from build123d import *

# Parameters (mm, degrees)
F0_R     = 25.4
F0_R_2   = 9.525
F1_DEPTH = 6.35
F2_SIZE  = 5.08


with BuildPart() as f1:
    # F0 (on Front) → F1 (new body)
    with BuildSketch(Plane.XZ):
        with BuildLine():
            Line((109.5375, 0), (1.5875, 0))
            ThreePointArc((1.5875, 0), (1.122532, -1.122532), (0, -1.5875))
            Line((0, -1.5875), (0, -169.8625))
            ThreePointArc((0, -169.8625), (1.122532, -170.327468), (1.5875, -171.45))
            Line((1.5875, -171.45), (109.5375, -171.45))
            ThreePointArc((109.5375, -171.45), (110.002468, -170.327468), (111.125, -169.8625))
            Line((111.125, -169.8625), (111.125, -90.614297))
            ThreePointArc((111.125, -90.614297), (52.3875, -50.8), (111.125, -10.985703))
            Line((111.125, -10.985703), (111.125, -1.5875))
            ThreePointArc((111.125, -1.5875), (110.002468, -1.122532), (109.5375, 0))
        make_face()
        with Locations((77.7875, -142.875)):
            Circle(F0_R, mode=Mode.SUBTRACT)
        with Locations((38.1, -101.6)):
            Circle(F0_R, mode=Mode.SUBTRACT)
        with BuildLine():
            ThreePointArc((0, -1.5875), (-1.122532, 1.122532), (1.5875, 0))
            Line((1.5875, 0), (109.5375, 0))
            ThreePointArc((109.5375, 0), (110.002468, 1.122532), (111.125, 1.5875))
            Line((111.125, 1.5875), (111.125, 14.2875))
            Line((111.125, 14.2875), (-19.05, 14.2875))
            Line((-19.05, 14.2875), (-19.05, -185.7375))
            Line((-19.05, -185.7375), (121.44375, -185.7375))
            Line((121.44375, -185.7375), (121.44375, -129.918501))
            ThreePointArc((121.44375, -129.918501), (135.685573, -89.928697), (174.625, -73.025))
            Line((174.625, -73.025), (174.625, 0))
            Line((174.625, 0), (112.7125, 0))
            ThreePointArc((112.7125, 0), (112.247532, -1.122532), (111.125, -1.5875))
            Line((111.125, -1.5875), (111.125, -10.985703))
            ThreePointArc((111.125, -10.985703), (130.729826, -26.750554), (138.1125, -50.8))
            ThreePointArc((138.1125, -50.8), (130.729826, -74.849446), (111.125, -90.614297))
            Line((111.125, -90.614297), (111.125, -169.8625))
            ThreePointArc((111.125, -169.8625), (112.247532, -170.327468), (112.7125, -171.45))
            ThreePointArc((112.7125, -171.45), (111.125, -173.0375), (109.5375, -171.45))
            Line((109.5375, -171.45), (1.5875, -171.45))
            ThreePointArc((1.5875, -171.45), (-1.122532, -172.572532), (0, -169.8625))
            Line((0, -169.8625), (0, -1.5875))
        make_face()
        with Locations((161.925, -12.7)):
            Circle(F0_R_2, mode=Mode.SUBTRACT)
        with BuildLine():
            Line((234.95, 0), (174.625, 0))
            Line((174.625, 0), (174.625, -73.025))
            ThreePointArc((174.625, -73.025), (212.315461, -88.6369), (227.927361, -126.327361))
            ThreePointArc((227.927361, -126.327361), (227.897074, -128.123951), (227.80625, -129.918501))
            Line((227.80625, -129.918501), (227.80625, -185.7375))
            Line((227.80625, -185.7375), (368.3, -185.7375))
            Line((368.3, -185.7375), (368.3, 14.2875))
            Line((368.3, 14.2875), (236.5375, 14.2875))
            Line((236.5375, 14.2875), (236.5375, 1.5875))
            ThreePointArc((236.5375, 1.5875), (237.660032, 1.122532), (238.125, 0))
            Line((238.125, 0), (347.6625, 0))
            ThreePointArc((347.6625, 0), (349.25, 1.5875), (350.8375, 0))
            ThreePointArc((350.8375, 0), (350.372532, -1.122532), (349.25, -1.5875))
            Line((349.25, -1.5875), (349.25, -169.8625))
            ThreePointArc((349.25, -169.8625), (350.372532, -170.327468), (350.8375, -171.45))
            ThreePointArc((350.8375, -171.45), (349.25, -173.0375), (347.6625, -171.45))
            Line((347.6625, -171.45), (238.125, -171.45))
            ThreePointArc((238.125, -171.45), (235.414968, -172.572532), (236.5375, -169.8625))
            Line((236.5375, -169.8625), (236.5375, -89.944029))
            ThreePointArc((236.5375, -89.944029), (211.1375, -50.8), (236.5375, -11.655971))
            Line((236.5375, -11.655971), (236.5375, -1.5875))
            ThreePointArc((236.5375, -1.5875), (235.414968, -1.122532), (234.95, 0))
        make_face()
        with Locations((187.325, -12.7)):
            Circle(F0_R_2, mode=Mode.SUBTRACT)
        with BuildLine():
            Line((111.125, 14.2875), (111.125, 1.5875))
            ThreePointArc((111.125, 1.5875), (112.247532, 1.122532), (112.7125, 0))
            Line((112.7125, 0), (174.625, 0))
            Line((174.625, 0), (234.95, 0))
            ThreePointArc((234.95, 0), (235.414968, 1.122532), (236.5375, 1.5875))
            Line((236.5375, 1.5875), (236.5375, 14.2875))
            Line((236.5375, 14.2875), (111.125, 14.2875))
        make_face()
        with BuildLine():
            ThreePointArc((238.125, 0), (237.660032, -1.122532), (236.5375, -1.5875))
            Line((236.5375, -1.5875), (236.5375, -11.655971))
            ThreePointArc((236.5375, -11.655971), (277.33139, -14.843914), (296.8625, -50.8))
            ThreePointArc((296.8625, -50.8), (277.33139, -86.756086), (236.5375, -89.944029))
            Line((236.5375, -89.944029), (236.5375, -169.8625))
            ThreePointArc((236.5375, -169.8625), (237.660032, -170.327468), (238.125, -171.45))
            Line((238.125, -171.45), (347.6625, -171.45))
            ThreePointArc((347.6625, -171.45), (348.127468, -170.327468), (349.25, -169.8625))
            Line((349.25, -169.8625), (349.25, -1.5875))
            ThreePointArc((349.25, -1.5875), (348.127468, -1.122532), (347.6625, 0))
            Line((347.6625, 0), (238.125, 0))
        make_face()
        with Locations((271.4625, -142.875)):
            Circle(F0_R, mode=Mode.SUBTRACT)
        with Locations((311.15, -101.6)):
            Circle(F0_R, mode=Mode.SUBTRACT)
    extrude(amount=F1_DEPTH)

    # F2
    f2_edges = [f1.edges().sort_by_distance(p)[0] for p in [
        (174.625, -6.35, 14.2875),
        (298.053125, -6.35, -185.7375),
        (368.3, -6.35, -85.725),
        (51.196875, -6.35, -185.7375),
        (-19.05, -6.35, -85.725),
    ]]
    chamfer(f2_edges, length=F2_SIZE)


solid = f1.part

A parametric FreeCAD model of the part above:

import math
import FreeCAD as App
import Part
import Sketcher
from FreeCAD import Vector
Q = App.Units.Quantity


def edges_at(feature, points):
    """Names of the edges that pass closest to the given points."""
    edges = feature.Shape.Edges
    near = lambda p: min(range(len(edges)), key=lambda i: edges[i].distToShape(Part.Vertex(*p))[0])
    return sorted({f"Edge{near(p) + 1}" for p in points})

doc = App.newDocument("Part")
body = doc.addObject("PartDesign::Body", "Body")

# Sketch on XZ plane
sketch1 = body.newObject("Sketcher::SketchObject", "Sketch")
sketch1.AttachmentSupport = (doc.getObject("XZ_Plane"), [""])
sketch1.MapMode = "FlatFace"
sketch1.addGeometry([
    Part.LineSegment(Vector(-19.05, 14.2875, 0), Vector(-19.05, -185.7375, 0)),  # 0
    Part.LineSegment(Vector(-19.05, -185.7375, 0), Vector(121.44375, -185.7375, 0)),  # 1
    Part.LineSegment(Vector(121.44375, -185.7375, 0), Vector(121.44375, -129.918501, 0)),  # 2
    Part.ArcOfCircle(Part.Circle(Vector(174.624999, -126.32736, 0), Vector(0, 0, 1), 53.30236), math.radians(89.999999), math.radians(183.863116)),  # 3
    Part.ArcOfCircle(Part.Circle(Vector(174.625, -126.327361, 0), Vector(0, 0, 1), 53.302361), math.radians(0), math.radians(90)),  # 4
    Part.ArcOfCircle(Part.Circle(Vector(174.624023, -126.327321, 0), Vector(0, 0, 1), 53.303338), math.radians(-3.863087), math.radians(-0.000043)),  # 5
    Part.LineSegment(Vector(227.80625, -129.918501, 0), Vector(227.80625, -185.7375, 0)),  # 6
    Part.LineSegment(Vector(227.80625, -185.7375, 0), Vector(368.3, -185.7375, 0)),  # 7
    Part.LineSegment(Vector(368.3, -185.7375, 0), Vector(368.3, 14.2875, 0)),  # 8
    Part.LineSegment(Vector(368.3, 14.2875, 0), Vector(-19.05, 14.2875, 0)),  # 9
    Part.ArcOfCircle(Part.Circle(Vector(0, -171.45, 0), Vector(0, 0, 1), 1.5875), math.radians(0.000002), math.radians(89.999998)),  # 10
    Part.ArcOfCircle(Part.Circle(Vector(0, -171.45, 0), Vector(0, 0, 1), 1.5875), math.radians(90), math.radians(360)),  # 11
    Part.Circle(Vector(77.7875, -142.875, 0), Vector(0, 0, 1), 25.4),  # 12
    Part.ArcOfCircle(Part.Circle(Vector(111.125, -171.45, 0), Vector(0, 0, 1), 1.5875), math.radians(90.000002), math.radians(179.999998)),  # 13
    Part.ArcOfCircle(Part.Circle(Vector(111.125, -171.45, 0), Vector(0, 0, 1), 1.5875), math.radians(0.000002), math.radians(89.999998)),  # 14
    Part.ArcOfCircle(Part.Circle(Vector(111.125, -171.45, 0), Vector(0, 0, 1), 1.5875), math.radians(180), math.radians(360)),  # 15
    Part.Circle(Vector(38.1, -101.6, 0), Vector(0, 0, 1), 25.4),  # 16
    Part.ArcOfCircle(Part.Circle(Vector(236.5375, -171.45, 0), Vector(0, 0, 1), 1.5875), math.radians(90), math.radians(360)),  # 17
    Part.ArcOfCircle(Part.Circle(Vector(236.5375, -171.45, 0), Vector(0, 0, 1), 1.5875), math.radians(0.000002), math.radians(89.999998)),  # 18
    Part.ArcOfCircle(Part.Circle(Vector(349.25, -171.45, 0), Vector(0, 0, 1), 1.5875), math.radians(0.000002), math.radians(89.999998)),  # 19
    Part.ArcOfCircle(Part.Circle(Vector(349.25, -171.45, 0), Vector(0, 0, 1), 1.5875), math.radians(180), math.radians(360)),  # 20
    Part.ArcOfCircle(Part.Circle(Vector(349.25, -171.45, 0), Vector(0, 0, 1), 1.5875), math.radians(90.000002), math.radians(179.999998)),  # 21
    Part.Circle(Vector(271.4625, -142.875, 0), Vector(0, 0, 1), 25.4),  # 22
    Part.Circle(Vector(311.15, -101.6, 0), Vector(0, 0, 1), 25.4),  # 23
    Part.ArcOfCircle(Part.Circle(Vector(95.25, -50.8, 0), Vector(0, 0, 1), 42.8625), math.radians(68.261539), math.radians(291.738461)),  # 24
    Part.ArcOfCircle(Part.Circle(Vector(95.250001, -50.8, 0), Vector(0, 0, 1), 42.862499), math.radians(0), math.radians(68.26154)),  # 25
    Part.ArcOfCircle(Part.Circle(Vector(95.250001, -50.8, 0), Vector(0, 0, 1), 42.862499), math.radians(-68.26154), math.radians(0)),  # 26
    Part.ArcOfCircle(Part.Circle(Vector(0, 0, 0), Vector(0, 0, 1), 1.5875), math.radians(-89.999998), math.radians(-0.000002)),  # 27
    Part.ArcOfCircle(Part.Circle(Vector(0, 0, 0), Vector(0, 0, 1), 1.5875), math.radians(0), math.radians(270)),  # 28
    Part.ArcOfCircle(Part.Circle(Vector(111.125, 0, 0), Vector(0, 0, 1), 1.5875), math.radians(-179.999998), math.radians(-90.000002)),  # 29
    Part.ArcOfCircle(Part.Circle(Vector(111.125, 0, 0), Vector(0, 0, 1), 1.5875), math.radians(90.000002), math.radians(179.999998)),  # 30
    Part.ArcOfCircle(Part.Circle(Vector(111.125, 0, 0), Vector(0, 0, 1), 1.5875), math.radians(0.000002), math.radians(89.999998)),  # 31
    Part.ArcOfCircle(Part.Circle(Vector(111.125, 0, 0), Vector(0, 0, 1), 1.5875), math.radians(-89.999998), math.radians(-0.000002)),  # 32
    Part.Circle(Vector(161.925, -12.7, 0), Vector(0, 0, 1), 9.525),  # 33
    Part.ArcOfCircle(Part.Circle(Vector(254, -50.8, 0), Vector(0, 0, 1), 42.8625), math.radians(114.042076), math.radians(245.957924)),  # 34
    Part.ArcOfCircle(Part.Circle(Vector(254, -50.800001, 0), Vector(0, 0, 1), 42.8625), math.radians(0.000001), math.radians(114.042075)),  # 35
    Part.ArcOfCircle(Part.Circle(Vector(254, -50.799999, 0), Vector(0, 0, 1), 42.8625), math.radians(-114.042075), math.radians(-0.000001)),  # 36
    Part.Circle(Vector(187.325, -12.7, 0), Vector(0, 0, 1), 9.525),  # 37
    Part.ArcOfCircle(Part.Circle(Vector(236.5375, 0, 0), Vector(0, 0, 1), 1.5875), math.radians(-179.999998), math.radians(-90.000002)),  # 38
    Part.ArcOfCircle(Part.Circle(Vector(236.5375, 0, 0), Vector(0, 0, 1), 1.5875), math.radians(90.000002), math.radians(179.999998)),  # 39
    Part.ArcOfCircle(Part.Circle(Vector(236.5375, 0, 0), Vector(0, 0, 1), 1.5875), math.radians(0.000002), math.radians(89.999998)),  # 40
    Part.ArcOfCircle(Part.Circle(Vector(236.5375, 0, 0), Vector(0, 0, 1), 1.5875), math.radians(-89.999998), math.radians(-0.000002)),  # 41
    Part.ArcOfCircle(Part.Circle(Vector(349.25, 0, 0), Vector(0, 0, 1), 1.5875), math.radians(0), math.radians(180)),  # 42
    Part.ArcOfCircle(Part.Circle(Vector(349.25, 0, 0), Vector(0, 0, 1), 1.5875), math.radians(-89.999998), math.radians(-0.000002)),  # 43
    Part.ArcOfCircle(Part.Circle(Vector(349.25, 0, 0), Vector(0, 0, 1), 1.5875), math.radians(-179.999998), math.radians(-90.000002)),  # 44
], False)
sketch1.addConstraint([
    Sketcher.Constraint("Coincident", 0, 2, 1, 1),
    Sketcher.Constraint("Coincident", 1, 2, 2, 1),
    Sketcher.Constraint("Coincident", 2, 2, 3, 2),
    Sketcher.Constraint("Coincident", 3, 1, 4, 2),
    Sketcher.Constraint("Coincident", 4, 1, 5, 2),
    Sketcher.Constraint("Coincident", 5, 1, 6, 1),
    Sketcher.Constraint("Coincident", 6, 2, 7, 1),
    Sketcher.Constraint("Coincident", 7, 2, 8, 1),
    Sketcher.Constraint("Coincident", 8, 2, 9, 1),
    Sketcher.Constraint("Coincident", 9, 2, 0, 1),
    Sketcher.Constraint("Coincident", 10, 1, 11, 2),
    Sketcher.Constraint("Coincident", 11, 1, 10, 2),
    Sketcher.Constraint("Coincident", 13, 1, 14, 2),
    Sketcher.Constraint("Coincident", 14, 1, 15, 2),
    Sketcher.Constraint("Coincident", 15, 1, 13, 2),
    Sketcher.Constraint("Coincident", 17, 1, 18, 2),
    Sketcher.Constraint("Coincident", 18, 1, 17, 2),
    Sketcher.Constraint("Coincident", 19, 1, 20, 2),
    Sketcher.Constraint("Coincident", 20, 1, 21, 2),
    Sketcher.Constraint("Coincident", 21, 1, 19, 2),
    Sketcher.Constraint("Coincident", 24, 1, 25, 2),
    Sketcher.Constraint("Coincident", 25, 1, 26, 2),
    Sketcher.Constraint("Coincident", 26, 1, 24, 2),
    Sketcher.Constraint("Coincident", 27, 1, 28, 2),
    Sketcher.Constraint("Coincident", 28, 1, 27, 2),
    Sketcher.Constraint("Coincident", 29, 1, 30, 2),
    Sketcher.Constraint("Coincident", 30, 1, 31, 2),
    Sketcher.Constraint("Coincident", 31, 1, 32, 2),
    Sketcher.Constraint("Coincident", 32, 1, 29, 2),
    Sketcher.Constraint("Coincident", 34, 1, 35, 2),
    Sketcher.Constraint("Coincident", 35, 1, 36, 2),
    Sketcher.Constraint("Coincident", 36, 1, 34, 2),
    Sketcher.Constraint("Coincident", 38, 1, 39, 2),
    Sketcher.Constraint("Coincident", 39, 1, 40, 2),
    Sketcher.Constraint("Coincident", 40, 1, 41, 2),
    Sketcher.Constraint("Coincident", 41, 1, 38, 2),
    Sketcher.Constraint("Coincident", 42, 1, 43, 2),
    Sketcher.Constraint("Coincident", 43, 1, 44, 2),
    Sketcher.Constraint("Coincident", 44, 1, 42, 2),
    Sketcher.Constraint("Vertical", 0),
    Sketcher.Constraint("Horizontal", 1),
    Sketcher.Constraint("Vertical", 2),
    Sketcher.Constraint("Vertical", 6),
    Sketcher.Constraint("Horizontal", 7),
    Sketcher.Constraint("Vertical", 8),
    Sketcher.Constraint("Horizontal", 9),
    Sketcher.Constraint("Coincident", 27, 3, -1, 1),
    Sketcher.Constraint("Coincident", 4, 3, 3, 3),
    Sketcher.Constraint("Coincident", 14, 3, 13, 3),
    Sketcher.Constraint("Coincident", 20, 3, 19, 3),
    Sketcher.Constraint("Coincident", 25, 3, 24, 3),
    Sketcher.Constraint("Coincident", 30, 3, 29, 3),
    Sketcher.Constraint("Coincident", 31, 3, 29, 3),
    Sketcher.Constraint("Coincident", 35, 3, 34, 3),
    Sketcher.Constraint("Coincident", 39, 3, 38, 3),
    Sketcher.Constraint("Coincident", 40, 3, 38, 3),
    Sketcher.Constraint("Coincident", 43, 3, 42, 3),
    Sketcher.Constraint("PointOnObject", 10, 3, -2),
    Sketcher.Constraint("PointOnObject", 11, 3, -2),
    Sketcher.Constraint("PointOnObject", 29, 3, -1),
    Sketcher.Constraint("PointOnObject", 32, 3, -1),
    Sketcher.Constraint("PointOnObject", 38, 3, -1),
    Sketcher.Constraint("PointOnObject", 41, 3, -1),
    Sketcher.Constraint("PointOnObject", 42, 3, -1),
    Sketcher.Constraint("PointOnObject", 44, 3, -1),
    Sketcher.Constraint("PointOnObject", 11, 1, -2),
    Sketcher.Constraint("PointOnObject", 27, 1, -2),
    Sketcher.Constraint("PointOnObject", 28, 1, -1),
    Sketcher.Constraint("PointOnObject", 29, 1, -1),
    Sketcher.Constraint("PointOnObject", 31, 1, -1),
    Sketcher.Constraint("PointOnObject", 38, 1, -1),
    Sketcher.Constraint("PointOnObject", 40, 1, -1),
    Sketcher.Constraint("PointOnObject", 42, 1, -1),
    Sketcher.Constraint("PointOnObject", 44, 1, -1),
    Sketcher.Constraint("Diameter", 12, Q("2 in")),
    Sketcher.Constraint("Diameter", 16, Q("2 in")),
    Sketcher.Constraint("Diameter", 22, Q("2 in")),
    Sketcher.Constraint("Diameter", 23, Q("2 in")),
    Sketcher.Constraint("Diameter", 33, Q("0.75 in")),
    Sketcher.Constraint("Diameter", 37, Q("0.75 in")),
    Sketcher.Constraint("DistanceY", 16, 3, -1, 1, Q("4 in")),
    Sketcher.Constraint("DistanceY", 23, 3, -1, 1, Q("4 in")),
    Sketcher.Constraint("DistanceY", 24, 3, -1, 1, Q("2 in")),
    Sketcher.Constraint("DistanceY", 26, 3, -1, 1, Q("2 in")),
    Sketcher.Constraint("DistanceX", -1, 1, 34, 3, Q("10 in")),
    Sketcher.Constraint("DistanceY", 34, 3, -1, 1, Q("2 in")),
    Sketcher.Constraint("DistanceX", -1, 1, 36, 3, Q("10 in")),
    Sketcher.Constraint("DistanceY", 25, 1, -1, 1, Q("2 in")),
    Sketcher.Constraint("DistanceY", 35, 1, -1, 1, Q("2 in")),
    Sketcher.Constraint("Radius", 10, Q("0.0625 in")),
    Sketcher.Constraint("Radius", 13, Q("0.0625 in")),
    Sketcher.Constraint("Radius", 17, Q("0.0625 in")),
    Sketcher.Constraint("Radius", 18, Q("0.0625 in")),
    Sketcher.Constraint("Radius", 19, Q("0.0625 in")),
    Sketcher.Constraint("Radius", 21, Q("0.0625 in")),
    Sketcher.Constraint("Radius", 24, Q("1.6875 in")),
    Sketcher.Constraint("Radius", 27, Q("0.0625 in")),
    Sketcher.Constraint("Radius", 28, Q("0.0625 in")),
    Sketcher.Constraint("Radius", 29, Q("0.0625 in")),
    Sketcher.Constraint("Radius", 34, Q("1.6875 in")),
    Sketcher.Constraint("Radius", 38, Q("0.0625 in")),
    Sketcher.Constraint("Radius", 42, Q("0.0625 in")),
    Sketcher.Constraint("DistanceX", 9, 2, 9, 1, Q("15.25 in")),
    Sketcher.Constraint("DistanceX", -1, 1, 16, 3, Q("1.5 in")),
    Sketcher.Constraint("DistanceY", 33, 3, -1, 1, Q("0.5 in")),
    Sketcher.Constraint("DistanceY", 37, 3, -1, 1, Q("0.5 in")),
    Sketcher.Constraint("DistanceX", -1, 1, 7, 2, Q("14.5 in")),
    Sketcher.Constraint("DistanceX", 1, 1, 1, 2, Q("5.53125 in")),
    Sketcher.Constraint("DistanceX", 7, 1, 7, 2, Q("5.53125 in")),
    Sketcher.Constraint("DistanceY", 0, 2, 0, 1, Q("7.875 in")),
    Sketcher.Constraint("DistanceY", 8, 1, 8, 2, Q("7.875 in")),
    Sketcher.Constraint("DistanceY", 10, 3, -1, 1, Q("6.75 in")),
    Sketcher.Constraint("DistanceY", 13, 3, -1, 1, Q("6.75 in")),
    Sketcher.Constraint("DistanceY", 15, 3, -1, 1, Q("6.75 in")),
    Sketcher.Constraint("DistanceY", 17, 3, -1, 1, Q("6.75 in")),
    Sketcher.Constraint("DistanceX", -1, 1, 19, 3, Q("13.75 in")),
    Sketcher.Constraint("DistanceY", 19, 3, -1, 1, Q("6.75 in")),
    Sketcher.Constraint("DistanceX", -1, 1, 23, 3, Q("12.25 in")),
    Sketcher.Constraint("DistanceX", -1, 1, 24, 3, Q("3.75 in")),
    Sketcher.Constraint("DistanceX", -1, 1, 42, 3, Q("13.75 in")),
    Sketcher.Constraint("DistanceY", 10, 1, -1, 1, Q("6.75 in")),
    Sketcher.Constraint("DistanceY", 14, 1, -1, 1, Q("6.75 in")),
    Sketcher.Constraint("DistanceY", 15, 1, -1, 1, Q("6.75 in")),
    Sketcher.Constraint("DistanceY", 18, 1, -1, 1, Q("6.75 in")),
    Sketcher.Constraint("DistanceY", 19, 1, -1, 1, Q("6.75 in")),
    Sketcher.Constraint("DistanceY", 20, 1, -1, 1, Q("6.75 in")),
    Sketcher.Constraint("DistanceX", -1, 1, 21, 1, Q("13.75 in")),
    Sketcher.Constraint("DistanceX", -1, 1, 38, 1, Q("9.25 in")),
    Sketcher.Constraint("DistanceX", -1, 1, 43, 1, Q("13.75 in")),
    Sketcher.Constraint("DistanceX", -1, 1, 3, 3, Q("6.875 in")),
    Sketcher.Constraint("DistanceX", -1, 1, 12, 3, Q("3.0625 in")),
    Sketcher.Constraint("DistanceY", 12, 3, -1, 1, Q("5.625 in")),
    Sketcher.Constraint("DistanceX", -1, 1, 13, 3, Q("4.375 in")),
    Sketcher.Constraint("DistanceX", -1, 1, 17, 3, Q("9.3125 in")),
    Sketcher.Constraint("DistanceX", -1, 1, 22, 3, Q("10.6875 in")),
    Sketcher.Constraint("DistanceY", 22, 3, -1, 1, Q("5.625 in")),
    Sketcher.Constraint("DistanceX", -1, 1, 29, 3, Q("4.375 in")),
    Sketcher.Constraint("DistanceX", -1, 1, 33, 3, Q("6.375 in")),
    Sketcher.Constraint("DistanceX", -1, 1, 37, 3, Q("7.375 in")),
    Sketcher.Constraint("DistanceY", 0, 2, -1, 1, Q("7.3125 in")),
    Sketcher.Constraint("DistanceX", -1, 1, 3, 1, Q("6.875 in")),
    Sketcher.Constraint("DistanceY", 3, 1, -1, 1, Q("2.875 in")),
    Sketcher.Constraint("DistanceX", -1, 1, 13, 1, Q("4.375 in")),
    Sketcher.Constraint("DistanceX", -1, 1, 17, 1, Q("9.3125 in")),
    Sketcher.Constraint("DistanceX", -1, 1, 24, 1, Q("4.375 in")),
    Sketcher.Constraint("DistanceX", -1, 1, 26, 1, Q("4.375 in")),
    Sketcher.Constraint("DistanceX", -1, 1, 30, 1, Q("4.375 in")),
    Sketcher.Constraint("DistanceX", -1, 1, 32, 1, Q("4.375 in")),
    Sketcher.Constraint("DistanceX", -1, 1, 34, 1, Q("9.3125 in")),
    Sketcher.Constraint("DistanceX", -1, 1, 36, 1, Q("9.3125 in")),
    Sketcher.Constraint("DistanceX", -1, 1, 39, 1, Q("9.3125 in")),
    Sketcher.Constraint("DistanceX", -1, 1, 41, 1, Q("9.3125 in")),
    Sketcher.Constraint("Radius", 3, 53.30236),
    Sketcher.Constraint("Radius", 5, 53.303338),
    Sketcher.Constraint("DistanceY", 6, 2, 6, 1, 55.818999),
    Sketcher.Constraint("DistanceY", 4, 1, -1, 1, 126.327361),
])
pad1 = body.newObject("PartDesign::Pad", "Pad")
pad1.Profile = sketch1
pad1.Length = Q("0.25 in")
doc.recompute()

chamfer = body.newObject("PartDesign::Chamfer", "Chamfer")
chamfer.Base = (pad1, edges_at(pad1, [
    (174.625, -6.35, 14.287),
    (298.053, -6.35, -185.738),
    (368.3, -6.35, -85.725),
    (51.197, -6.35, -185.738),
    (-19.05, -6.35, -85.725),
]))
chamfer.Size = Q("0.2 in")

doc.recompute()
